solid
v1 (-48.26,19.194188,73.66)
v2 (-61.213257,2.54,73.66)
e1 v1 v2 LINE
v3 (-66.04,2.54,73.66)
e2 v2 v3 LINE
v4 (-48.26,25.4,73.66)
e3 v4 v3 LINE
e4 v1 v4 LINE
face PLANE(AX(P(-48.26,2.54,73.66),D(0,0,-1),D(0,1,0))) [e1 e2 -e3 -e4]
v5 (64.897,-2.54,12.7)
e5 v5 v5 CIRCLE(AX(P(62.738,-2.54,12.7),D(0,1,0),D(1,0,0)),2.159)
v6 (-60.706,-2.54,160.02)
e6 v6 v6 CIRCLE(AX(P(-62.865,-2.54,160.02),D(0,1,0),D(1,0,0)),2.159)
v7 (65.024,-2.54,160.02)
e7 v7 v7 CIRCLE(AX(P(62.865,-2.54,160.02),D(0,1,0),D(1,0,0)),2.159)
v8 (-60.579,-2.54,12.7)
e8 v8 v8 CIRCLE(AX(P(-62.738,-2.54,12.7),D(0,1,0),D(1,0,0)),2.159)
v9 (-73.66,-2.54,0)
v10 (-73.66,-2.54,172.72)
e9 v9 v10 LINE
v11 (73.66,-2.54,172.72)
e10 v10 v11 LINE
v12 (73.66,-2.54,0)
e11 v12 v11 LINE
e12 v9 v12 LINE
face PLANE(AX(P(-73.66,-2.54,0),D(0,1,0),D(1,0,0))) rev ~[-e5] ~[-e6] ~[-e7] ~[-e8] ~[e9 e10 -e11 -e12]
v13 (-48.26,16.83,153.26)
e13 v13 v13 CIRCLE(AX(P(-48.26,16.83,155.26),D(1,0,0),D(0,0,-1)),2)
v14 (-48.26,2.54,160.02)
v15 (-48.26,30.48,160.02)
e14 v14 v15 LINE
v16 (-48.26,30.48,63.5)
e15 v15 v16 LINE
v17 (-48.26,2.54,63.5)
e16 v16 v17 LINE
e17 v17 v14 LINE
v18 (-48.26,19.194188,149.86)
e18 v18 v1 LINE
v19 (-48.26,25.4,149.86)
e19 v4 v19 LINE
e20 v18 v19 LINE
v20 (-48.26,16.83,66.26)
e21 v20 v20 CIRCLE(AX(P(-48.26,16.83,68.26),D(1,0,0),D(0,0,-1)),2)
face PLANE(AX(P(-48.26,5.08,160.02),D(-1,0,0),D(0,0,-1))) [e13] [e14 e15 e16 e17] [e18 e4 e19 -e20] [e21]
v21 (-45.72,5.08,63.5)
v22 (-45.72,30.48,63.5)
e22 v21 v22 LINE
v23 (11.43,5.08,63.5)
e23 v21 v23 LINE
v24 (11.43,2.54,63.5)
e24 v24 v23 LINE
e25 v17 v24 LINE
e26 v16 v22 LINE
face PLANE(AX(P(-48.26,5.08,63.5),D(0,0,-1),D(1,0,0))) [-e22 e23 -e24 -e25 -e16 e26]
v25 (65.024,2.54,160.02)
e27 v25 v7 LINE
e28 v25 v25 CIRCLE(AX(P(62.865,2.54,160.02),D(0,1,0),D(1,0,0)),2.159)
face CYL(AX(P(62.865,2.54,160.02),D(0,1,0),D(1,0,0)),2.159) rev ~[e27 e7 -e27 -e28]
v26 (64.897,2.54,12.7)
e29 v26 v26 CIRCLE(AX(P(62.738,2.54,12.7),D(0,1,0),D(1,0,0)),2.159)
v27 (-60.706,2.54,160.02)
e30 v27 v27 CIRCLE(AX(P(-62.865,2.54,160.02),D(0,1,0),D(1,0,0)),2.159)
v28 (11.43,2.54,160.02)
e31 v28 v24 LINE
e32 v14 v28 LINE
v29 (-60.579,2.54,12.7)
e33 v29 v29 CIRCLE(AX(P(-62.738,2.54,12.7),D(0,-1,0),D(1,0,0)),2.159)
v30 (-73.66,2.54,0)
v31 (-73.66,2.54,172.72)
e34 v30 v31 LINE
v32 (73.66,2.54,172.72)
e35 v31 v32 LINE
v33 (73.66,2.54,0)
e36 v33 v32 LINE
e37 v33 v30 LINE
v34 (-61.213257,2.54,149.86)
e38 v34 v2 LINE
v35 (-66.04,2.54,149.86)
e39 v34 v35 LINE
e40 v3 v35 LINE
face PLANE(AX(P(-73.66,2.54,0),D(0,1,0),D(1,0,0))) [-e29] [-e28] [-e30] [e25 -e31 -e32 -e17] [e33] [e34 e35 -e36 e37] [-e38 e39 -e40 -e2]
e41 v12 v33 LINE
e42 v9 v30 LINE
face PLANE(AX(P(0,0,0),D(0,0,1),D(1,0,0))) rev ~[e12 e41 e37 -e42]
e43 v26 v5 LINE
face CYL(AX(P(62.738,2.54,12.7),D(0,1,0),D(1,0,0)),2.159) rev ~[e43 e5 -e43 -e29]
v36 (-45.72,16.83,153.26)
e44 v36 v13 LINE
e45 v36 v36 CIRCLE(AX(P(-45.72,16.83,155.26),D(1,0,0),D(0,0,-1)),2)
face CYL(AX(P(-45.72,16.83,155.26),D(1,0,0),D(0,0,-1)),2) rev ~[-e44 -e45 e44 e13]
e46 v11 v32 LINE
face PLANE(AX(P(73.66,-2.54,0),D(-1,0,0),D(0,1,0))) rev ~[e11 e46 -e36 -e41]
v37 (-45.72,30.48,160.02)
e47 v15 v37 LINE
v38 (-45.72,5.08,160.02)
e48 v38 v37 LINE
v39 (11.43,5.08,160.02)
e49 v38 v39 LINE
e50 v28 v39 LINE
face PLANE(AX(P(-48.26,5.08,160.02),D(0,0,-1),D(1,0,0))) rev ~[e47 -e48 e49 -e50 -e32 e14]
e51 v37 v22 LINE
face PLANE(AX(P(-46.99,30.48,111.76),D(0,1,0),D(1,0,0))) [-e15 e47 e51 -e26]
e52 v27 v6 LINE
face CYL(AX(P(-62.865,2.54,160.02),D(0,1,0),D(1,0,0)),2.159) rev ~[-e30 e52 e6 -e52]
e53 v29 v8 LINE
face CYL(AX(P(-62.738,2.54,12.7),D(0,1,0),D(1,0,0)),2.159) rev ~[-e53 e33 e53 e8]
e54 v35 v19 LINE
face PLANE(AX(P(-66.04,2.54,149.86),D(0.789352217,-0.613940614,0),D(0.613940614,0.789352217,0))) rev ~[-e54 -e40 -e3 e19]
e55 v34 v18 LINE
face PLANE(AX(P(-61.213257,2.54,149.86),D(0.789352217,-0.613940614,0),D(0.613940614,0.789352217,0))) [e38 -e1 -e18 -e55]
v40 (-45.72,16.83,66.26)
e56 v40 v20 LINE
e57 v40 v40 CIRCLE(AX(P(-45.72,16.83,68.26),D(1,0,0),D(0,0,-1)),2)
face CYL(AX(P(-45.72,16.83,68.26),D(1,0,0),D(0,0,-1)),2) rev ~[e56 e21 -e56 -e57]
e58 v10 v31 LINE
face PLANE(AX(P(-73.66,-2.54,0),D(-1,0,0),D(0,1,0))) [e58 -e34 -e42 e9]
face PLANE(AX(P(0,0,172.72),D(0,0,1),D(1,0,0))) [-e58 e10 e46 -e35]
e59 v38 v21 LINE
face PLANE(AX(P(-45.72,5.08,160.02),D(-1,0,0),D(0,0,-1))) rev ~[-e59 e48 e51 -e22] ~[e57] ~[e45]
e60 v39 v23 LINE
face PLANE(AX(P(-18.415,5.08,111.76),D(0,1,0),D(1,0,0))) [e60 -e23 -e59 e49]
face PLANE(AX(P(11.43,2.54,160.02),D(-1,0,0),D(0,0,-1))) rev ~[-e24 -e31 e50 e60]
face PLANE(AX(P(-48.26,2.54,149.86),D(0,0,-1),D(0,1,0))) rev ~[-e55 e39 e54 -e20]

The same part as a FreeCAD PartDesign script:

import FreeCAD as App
import Part
import Sketcher

V = App.Vector
Q = App.Units.Quantity


def add_polygon(sketch, points):
    """Adds a closed chain of lines whose ends are joined by coincident constraints."""
    first, n = sketch.GeometryCount, len(points)
    for a, b in zip(points, points[1:] + points[:1]):
        sketch.addGeometry(Part.LineSegment(App.Vector(*a, 0), App.Vector(*b, 0)), False)
    for i in range(n):
        sketch.addConstraint(Sketcher.Constraint("Coincident", first + i, 2, first + (i + 1) % n, 1))

doc = App.newDocument("Part")
body = doc.addObject("PartDesign::Body", "Body")

sketch1 = body.newObject("Sketcher::SketchObject", "Sketch")
sketch1.AttachmentSupport = (doc.getObject("XY_Plane"), [""])
sketch1.MapMode = "FlatFace"
add_polygon(sketch1, [(-74, 3), (-74, -3), (74, -3), (74, 3)])
sketch1.addConstraint([
    Sketcher.Constraint("Vertical", 0),
    Sketcher.Constraint("Horizontal", 1),
    Sketcher.Constraint("Vertical", 2),
    Sketcher.Constraint("Horizontal", 3),
    Sketcher.Constraint("Symmetric", 0, 2, 2, 2, -1, 1),
    Sketcher.Constraint("DistanceX", 1, 1, 1, 2, Q("5.8 in")),
    Sketcher.Constraint("DistanceY", 0, 2, 0, 1, Q("0.2 in")),
])
pad1 = body.newObject("PartDesign::Pad", "Pad")
pad1.Profile = sketch1
pad1.Length = Q("6.8 in")

sketch2 = body.newObject("Sketcher::SketchObject", "Sketch001")
sketch2.AttachmentSupport = (doc.getObject("XZ_Plane"), [""])
sketch2.MapMode = "FlatFace"
sketch2.AttachmentOffset = App.Placement(V(0, 0, -0.1 * 25.4), App.Rotation())
sketch2.addGeometry([
    Part.Circle(V(62.7, 12.7, 0), V(0, 0, 1), 2.2),
    Part.Circle(V(-62.9, 160, 0), V(0, 0, 1), 2.2),
    Part.Circle(V(62.9, 160, 0), V(0, 0, 1), 2.2),
    Part.Circle(V(-62.7, 12.7, 0), V(0, 0, 1), 2.2),
], False)
sketch2.addConstraint([
    Sketcher.Constraint("Equal", 0, 1),
    Sketcher.Constraint("Equal", 1, 2),
    Sketcher.Constraint("Equal", 2, 3),
    Sketcher.Constraint("Symmetric", 1, 3, 2, 3, -2),
    Sketcher.Constraint("Symmetric", 0, 3, 3, 3, -2),
    Sketcher.Constraint("Diameter", 0, Q("0.17 in")),
    Sketcher.Constraint("DistanceY", -1, 1, 0, 3, Q("0.5 in")),
    Sketcher.Constraint("DistanceY", -1, 1, 1, 3, Q("6.3 in")),
    Sketcher.Constraint("DistanceX", -1, 1, 0, 3, Q("2.47 in")),
    Sketcher.Constraint("DistanceX", 1, 3, 2, 3, Q("4.95 in")),
])
pocket1 = body.newObject("PartDesign::Pocket", "Pocket")
pocket1.Profile = sketch2
pocket1.Type = "ThroughAll"
pocket1.Reversed = True

sketch3 = body.newObject("Sketcher::SketchObject", "Sketch002")
sketch3.AttachmentSupport = (doc.getObject("XZ_Plane"), [""])
sketch3.MapMode = "FlatFace"
sketch3.AttachmentOffset = App.Placement(V(0, 0, -0.1 * 25.4), App.Rotation())
add_polygon(sketch3, [(-48, 64), (-48, 160), (11, 160), (11, 64)])
sketch3.addConstraint([
    Sketcher.Constraint("Vertical", 0),
    Sketcher.Constraint("Horizontal", 1),
    Sketcher.Constraint("Vertical", 2),
    Sketcher.Constraint("Horizontal", 3),
    Sketcher.Constraint("DistanceY", 0, 1, 0, 2, Q("3.8 in")),
    Sketcher.Constraint("DistanceX", 1, 1, 1, 2, Q("2.35 in")),
    Sketcher.Constraint("DistanceX", 0, 2, -1, 1, Q("1.9 in")),
    Sketcher.Constraint("DistanceY", -1, 1, 0, 2, Q("6.3 in")),
])
pad2 = body.newObject("PartDesign::Pad", "Pad001")
pad2.Profile = sketch3
pad2.Length = Q("0.1 in")
pad2.Reversed = True

sketch4 = body.newObject("Sketcher::SketchObject", "Sketch003")
sketch4.AttachmentSupport = (doc.getObject("XZ_Plane"), [""])
sketch4.MapMode = "FlatFace"
sketch4.AttachmentOffset = App.Placement(V(0, 0, -0.2 * 25.4), App.Rotation())
add_polygon(sketch4, [(-48.3, 63.5), (-48.3, 160), (-45.7, 160), (-45.7, 63.5)])
sketch4.addConstraint([
    Sketcher.Constraint("Vertical", 0),
    Sketcher.Constraint("Horizontal", 1),
    Sketcher.Constraint("Vertical", 2),
    Sketcher.Constraint("Horizontal", 3),
    Sketcher.Constraint("DistanceX", 1, 1, 1, 2, Q("0.1 in")),
    Sketcher.Constraint("DistanceY", 0, 1, 0, 2, Q("3.8 in")),
    Sketcher.Constraint("DistanceX", 0, 2, -1, 1, Q("1.9 in")),
    Sketcher.Constraint("DistanceY", -1, 1, 0, 2, Q("6.3 in")),
])
pad3 = body.newObject("PartDesign::Pad", "Pad002")
pad3.Profile = sketch4
pad3.Length = Q("1 in")
pad3.Reversed = True

sketch5 = body.newObject("Sketcher::SketchObject", "Sketch004")
sketch5.AttachmentSupport = (doc.getObject("YZ_Plane"), [""])
sketch5.MapMode = "FlatFace"
sketch5.AttachmentOffset = App.Placement(V(0, 0, -1.9 * 25.4), App.Rotation())
add_polygon(sketch5, [(25, 74), (3, 74), (3, 150), (25, 150)])
sketch5.addConstraint([
    Sketcher.Constraint("Horizontal", 0),
    Sketcher.Constraint("Vertical", 1),
    Sketcher.Constraint("Horizontal", 2),
    Sketcher.Constraint("Vertical", 3),
    Sketcher.Constraint("DistanceY", 1, 1, 1, 2, Q("3 in")),
    Sketcher.Constraint("DistanceX", 0, 2, 0, 1, Q("0.9 in")),
    Sketcher.Constraint("DistanceX", -1, 1, 2, 2, Q("1 in")),
    Sketcher.Constraint("DistanceY", -1, 1, 0, 2, Q("2.9 in")),
])
pad4 = body.newObject("PartDesign::Pad", "Pad003")
pad4.Profile = sketch5
pad4.Length = Q("0.7 in")
pad4.Reversed = True

sketch6 = body.newObject("Sketcher::SketchObject", "Sketch005")
sketch6.AttachmentSupport = (doc.getObject("XY_Plane"), [""])
sketch6.MapMode = "FlatFace"
sketch6.AttachmentOffset = App.Placement(V(0, 0, 5.9 * 25.4), App.Rotation())
add_polygon(sketch6, [(-66, 3), (-48, 25), (-66, 25)])
add_polygon(sketch6, [(-48, 19), (-61, 3), (-48, 3)])
sketch6.addConstraint([
    Sketcher.Constraint("Horizontal", 1),
    Sketcher.Constraint("Vertical", 2),
    Sketcher.Constraint("Horizontal", 4),
    Sketcher.Constraint("Vertical", 5),
    Sketcher.Constraint("Parallel", 0, 3),
    Sketcher.Constraint("Horizontal", 2, 2, 3, 2),
    Sketcher.Constraint("Vertical", 0, 2, 4, 2),
    Sketcher.Constraint("DistanceX", 1, 2, 1, 1, Q("0.7 in")),
    Sketcher.Constraint("DistanceY", 2, 2, 2, 1, Q("0.9 in")),
    Sketcher.Constraint("DistanceY", -1, 1, 0, 2, Q("1 in")),
    Sketcher.Constraint("DistanceX", 0, 2, -1, 1, Q("1.9 in")),
    Sketcher.Constraint("DistanceY", 5, 1, 5, 2, Q("16.654188 mm")),
])
pocket2 = body.newObject("PartDesign::Pocket", "Pocket001")
pocket2.Profile = sketch6
pocket2.Type = "ThroughAll"

sketch7 = body.newObject("Sketcher::SketchObject", "Sketch006")
sketch7.AttachmentSupport = (doc.getObject("YZ_Plane"), [""])
sketch7.MapMode = "FlatFace"
sketch7.AttachmentOffset = App.Placement(V(0, 0, -1.8 * 25.4), App.Rotation())
sketch7.addGeometry([
    Part.Circle(V(16.8, 155.3, 0), V(0, 0, 1), 2),
    Part.Circle(V(16.8, 68.3, 0), V(0, 0, 1), 2),
], False)
sketch7.addConstraint([
    Sketcher.Constraint("Equal", 0, 1),
    Sketcher.Constraint("Vertical", 0, 3, 1, 3),
    Sketcher.Constraint("Diameter", 0, Q("4 mm")),
    Sketcher.Constraint("DistanceX", -1, 1, 0, 3, Q("16.83 mm")),
    Sketcher.Constraint("DistanceY", -1, 1, 0, 3, Q("155.26 mm")),
    Sketcher.Constraint("DistanceY", -1, 1, 1, 3, Q("68.26 mm")),
])
pocket3 = body.newObject("PartDesign::Pocket", "Pocket002")
pocket3.Profile = sketch7
pocket3.Type = "ThroughAll"

doc.recompute()
